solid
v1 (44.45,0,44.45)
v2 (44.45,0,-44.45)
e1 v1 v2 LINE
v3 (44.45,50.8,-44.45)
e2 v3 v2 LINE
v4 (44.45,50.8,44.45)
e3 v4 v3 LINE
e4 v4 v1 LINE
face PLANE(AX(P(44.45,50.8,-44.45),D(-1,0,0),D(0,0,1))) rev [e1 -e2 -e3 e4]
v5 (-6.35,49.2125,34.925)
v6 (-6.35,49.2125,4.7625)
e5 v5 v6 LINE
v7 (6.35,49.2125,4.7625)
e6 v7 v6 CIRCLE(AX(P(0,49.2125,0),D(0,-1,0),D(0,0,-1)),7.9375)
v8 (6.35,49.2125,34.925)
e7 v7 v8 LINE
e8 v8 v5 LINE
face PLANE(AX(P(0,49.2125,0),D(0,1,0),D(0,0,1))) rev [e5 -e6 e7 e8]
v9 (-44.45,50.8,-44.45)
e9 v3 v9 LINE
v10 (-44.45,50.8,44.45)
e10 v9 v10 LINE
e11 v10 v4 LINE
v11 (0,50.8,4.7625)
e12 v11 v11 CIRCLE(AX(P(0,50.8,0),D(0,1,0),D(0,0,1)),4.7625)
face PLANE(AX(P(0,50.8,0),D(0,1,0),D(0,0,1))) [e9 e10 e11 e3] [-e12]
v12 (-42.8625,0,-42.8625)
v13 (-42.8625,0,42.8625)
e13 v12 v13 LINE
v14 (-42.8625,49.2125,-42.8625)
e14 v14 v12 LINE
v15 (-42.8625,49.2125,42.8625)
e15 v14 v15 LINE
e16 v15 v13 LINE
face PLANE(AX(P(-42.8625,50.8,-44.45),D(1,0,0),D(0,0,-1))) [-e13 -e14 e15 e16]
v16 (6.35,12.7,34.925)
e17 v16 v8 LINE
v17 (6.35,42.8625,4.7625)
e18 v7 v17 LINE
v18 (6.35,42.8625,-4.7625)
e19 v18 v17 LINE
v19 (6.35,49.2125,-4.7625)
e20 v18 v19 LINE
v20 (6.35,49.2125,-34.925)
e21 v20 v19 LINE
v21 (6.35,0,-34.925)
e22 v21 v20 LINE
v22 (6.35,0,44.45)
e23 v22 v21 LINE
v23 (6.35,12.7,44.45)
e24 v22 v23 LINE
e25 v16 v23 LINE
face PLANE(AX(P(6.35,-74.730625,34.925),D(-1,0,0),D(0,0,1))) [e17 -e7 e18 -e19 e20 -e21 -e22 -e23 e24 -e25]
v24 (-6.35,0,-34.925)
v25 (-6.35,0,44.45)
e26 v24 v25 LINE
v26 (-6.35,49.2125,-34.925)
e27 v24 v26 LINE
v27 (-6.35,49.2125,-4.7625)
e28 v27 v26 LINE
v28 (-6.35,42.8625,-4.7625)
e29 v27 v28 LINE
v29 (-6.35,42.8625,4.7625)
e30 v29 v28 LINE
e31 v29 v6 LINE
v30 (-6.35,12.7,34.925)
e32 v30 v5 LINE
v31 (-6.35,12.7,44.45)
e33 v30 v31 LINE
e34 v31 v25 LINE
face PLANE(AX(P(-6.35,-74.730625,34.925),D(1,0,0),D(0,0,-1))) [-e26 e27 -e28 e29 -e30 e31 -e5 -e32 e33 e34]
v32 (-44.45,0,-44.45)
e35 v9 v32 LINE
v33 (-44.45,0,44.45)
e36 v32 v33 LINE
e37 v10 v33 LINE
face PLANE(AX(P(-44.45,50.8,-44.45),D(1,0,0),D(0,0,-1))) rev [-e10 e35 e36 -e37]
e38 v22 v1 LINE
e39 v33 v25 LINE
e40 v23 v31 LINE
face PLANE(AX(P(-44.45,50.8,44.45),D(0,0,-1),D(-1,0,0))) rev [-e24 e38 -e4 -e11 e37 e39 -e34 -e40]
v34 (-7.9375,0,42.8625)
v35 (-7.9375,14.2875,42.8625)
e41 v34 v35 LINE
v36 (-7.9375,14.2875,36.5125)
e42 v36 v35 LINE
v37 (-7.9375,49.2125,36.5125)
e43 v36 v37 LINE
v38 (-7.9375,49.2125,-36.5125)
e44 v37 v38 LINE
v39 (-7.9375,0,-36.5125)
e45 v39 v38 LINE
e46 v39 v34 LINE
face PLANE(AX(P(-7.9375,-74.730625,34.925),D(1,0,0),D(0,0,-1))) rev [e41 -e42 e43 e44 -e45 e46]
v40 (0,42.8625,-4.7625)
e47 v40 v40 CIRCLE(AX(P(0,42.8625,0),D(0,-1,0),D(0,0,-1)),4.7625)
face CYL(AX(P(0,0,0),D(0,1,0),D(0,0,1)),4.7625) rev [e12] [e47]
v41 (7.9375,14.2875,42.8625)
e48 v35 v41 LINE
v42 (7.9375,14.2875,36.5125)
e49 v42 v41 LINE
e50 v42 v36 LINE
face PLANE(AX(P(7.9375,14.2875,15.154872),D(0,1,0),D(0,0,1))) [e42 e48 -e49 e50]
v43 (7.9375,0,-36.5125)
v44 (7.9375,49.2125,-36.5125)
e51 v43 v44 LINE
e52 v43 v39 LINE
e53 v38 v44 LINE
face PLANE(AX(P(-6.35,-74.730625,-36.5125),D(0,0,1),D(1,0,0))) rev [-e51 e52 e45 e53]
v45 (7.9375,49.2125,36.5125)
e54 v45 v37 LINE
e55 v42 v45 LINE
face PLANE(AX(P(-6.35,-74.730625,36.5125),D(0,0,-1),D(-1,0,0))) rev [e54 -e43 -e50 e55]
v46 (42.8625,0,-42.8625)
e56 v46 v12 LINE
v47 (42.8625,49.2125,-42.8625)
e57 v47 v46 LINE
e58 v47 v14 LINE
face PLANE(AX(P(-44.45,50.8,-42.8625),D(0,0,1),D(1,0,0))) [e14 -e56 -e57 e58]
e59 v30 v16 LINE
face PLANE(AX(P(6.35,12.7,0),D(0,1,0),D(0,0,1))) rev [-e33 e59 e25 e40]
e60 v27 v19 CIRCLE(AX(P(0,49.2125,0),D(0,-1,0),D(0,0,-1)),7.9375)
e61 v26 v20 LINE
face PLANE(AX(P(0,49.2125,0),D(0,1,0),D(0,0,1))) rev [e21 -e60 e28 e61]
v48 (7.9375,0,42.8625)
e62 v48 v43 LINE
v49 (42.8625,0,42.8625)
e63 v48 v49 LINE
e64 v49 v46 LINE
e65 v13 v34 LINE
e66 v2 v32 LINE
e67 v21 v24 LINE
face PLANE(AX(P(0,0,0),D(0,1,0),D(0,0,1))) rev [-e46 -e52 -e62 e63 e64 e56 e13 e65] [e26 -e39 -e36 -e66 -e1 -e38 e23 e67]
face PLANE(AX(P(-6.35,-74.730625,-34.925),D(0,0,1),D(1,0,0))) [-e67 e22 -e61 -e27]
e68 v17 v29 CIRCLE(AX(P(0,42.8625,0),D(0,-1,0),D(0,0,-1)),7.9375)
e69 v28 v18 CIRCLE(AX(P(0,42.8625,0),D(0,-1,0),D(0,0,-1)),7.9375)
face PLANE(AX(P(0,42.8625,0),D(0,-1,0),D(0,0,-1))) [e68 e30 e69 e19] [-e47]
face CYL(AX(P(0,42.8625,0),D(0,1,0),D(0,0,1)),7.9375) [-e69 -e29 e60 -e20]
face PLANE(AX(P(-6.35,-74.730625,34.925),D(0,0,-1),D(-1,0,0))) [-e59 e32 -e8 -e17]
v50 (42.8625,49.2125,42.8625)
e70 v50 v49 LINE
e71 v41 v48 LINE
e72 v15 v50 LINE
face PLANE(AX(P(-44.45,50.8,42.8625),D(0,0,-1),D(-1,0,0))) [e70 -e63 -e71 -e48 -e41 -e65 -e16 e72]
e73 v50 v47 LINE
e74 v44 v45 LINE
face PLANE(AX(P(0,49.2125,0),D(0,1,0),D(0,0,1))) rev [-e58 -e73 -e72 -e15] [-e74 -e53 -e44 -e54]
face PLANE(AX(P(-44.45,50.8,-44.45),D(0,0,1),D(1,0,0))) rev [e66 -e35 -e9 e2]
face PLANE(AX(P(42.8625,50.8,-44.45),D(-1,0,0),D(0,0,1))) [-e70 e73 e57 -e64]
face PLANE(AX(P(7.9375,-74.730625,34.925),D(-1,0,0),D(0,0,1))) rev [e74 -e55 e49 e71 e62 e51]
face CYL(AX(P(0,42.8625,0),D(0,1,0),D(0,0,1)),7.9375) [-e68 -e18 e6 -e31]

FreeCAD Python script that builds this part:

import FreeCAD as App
import Part
import Sketcher
Q = App.Units.Quantity


def faces_at(feature, points):
    """Names of the faces that lie closest to the given points."""
    faces = feature.Shape.Faces
    near = lambda p: min(range(len(faces)), key=lambda i: faces[i].distToShape(Part.Vertex(*p))[0])
    return sorted({f"Face{near(p) + 1}" for p in points})

doc = App.newDocument("Part")
body = doc.addObject("PartDesign::Body", "Body")

# Sketch on XZ plane
sketch1 = body.newObject("Sketcher::SketchObject", "Sketch")
sketch1.AttachmentSupport = (doc.getObject("XZ_Plane"), [""])
sketch1.MapMode = "FlatFace"
sketch1.addGeometry(Part.LineSegment(App.Vector(-44.45, -44.45, 0), App.Vector(-44.45, 44.45, 0)), False)
sketch1.addGeometry(Part.LineSegment(App.Vector(-44.45, 44.45, 0), App.Vector(44.45, 44.45, 0)), False)
sketch1.addGeometry(Part.LineSegment(App.Vector(44.45, 44.45, 0), App.Vector(44.45, -44.45, 0)), False)
sketch1.addGeometry(Part.LineSegment(App.Vector(44.45, -44.45, 0), App.Vector(-44.45, -44.45, 0)), False)
sketch1.addConstraint(Sketcher.Constraint("Coincident", 0, 2, 1, 1))
sketch1.addConstraint(Sketcher.Constraint("Coincident", 1, 2, 2, 1))
sketch1.addConstraint(Sketcher.Constraint("Coincident", 2, 2, 3, 1))
sketch1.addConstraint(Sketcher.Constraint("Coincident", 3, 2, 0, 1))
sketch1.addConstraint(Sketcher.Constraint("Vertical", 0))
sketch1.addConstraint(Sketcher.Constraint("Horizontal", 1))
sketch1.addConstraint(Sketcher.Constraint("Vertical", 2))
sketch1.addConstraint(Sketcher.Constraint("Horizontal", 3))
sketch1.addConstraint(Sketcher.Constraint("Symmetric", 0, 2, 2, 2, -1, 1))
sketch1.addConstraint(Sketcher.Constraint("Equal", 3, 0))
sketch1.addConstraint(Sketcher.Constraint("DistanceX", 1, 1, 1, 2, Q("3.5 in")))
pad1 = body.newObject("PartDesign::Pad", "Pad")
pad1.Profile = sketch1
pad1.Length = Q("2 in")
pad1.Reversed = True
doc.recompute()

thickness = body.newObject("PartDesign::Thickness", "Thickness")
thickness.Base = (pad1, faces_at(pad1, [(0, 0, 0)]))
thickness.Value = Q("0.0625 in")
thickness.Reversed = True
thickness.Join = "Intersection"

# Sketch on XZ plane
sketch2 = body.newObject("Sketcher::SketchObject", "Sketch001")
sketch2.AttachmentSupport = (doc.getObject("XZ_Plane"), [""])
sketch2.MapMode = "FlatFace"
sketch2.AttachmentOffset = App.Placement(App.Vector(0, 0, -2 * 25.4), App.Rotation())
sketch2.addGeometry(Part.Circle(App.Vector(0, 0, 0), App.Vector(0, 0, 1), 4.7625), False)
sketch2.addConstraint(Sketcher.Constraint("Coincident", 0, 3, -1, 1))
sketch2.addConstraint(Sketcher.Constraint("Diameter", 0, Q("0.375 in")))
pocket1 = body.newObject("PartDesign::Pocket", "Pocket")
pocket1.Profile = sketch2
pocket1.Type = "ThroughAll"
pocket1.Reversed = True

# Sketch on XZ plane
sketch3 = body.newObject("Sketcher::SketchObject", "Sketch002")
sketch3.AttachmentSupport = (doc.getObject("XZ_Plane"), [""])
sketch3.MapMode = "FlatFace"
sketch3.AttachmentOffset = App.Placement(App.Vector(0, 0, -1.9375 * 25.4), App.Rotation())
sketch3.addGeometry(Part.LineSegment(App.Vector(-7.9375, 36.5125, 0), App.Vector(-7.9375, -36.5125, 0)), False)
sketch3.addGeometry(Part.LineSegment(App.Vector(-7.9375, -36.5125, 0), App.Vector(7.9375, -36.5125, 0)), False)
sketch3.addGeometry(Part.LineSegment(App.Vector(7.9375, -36.5125, 0), App.Vector(7.9375, 36.5125, 0)), False)
sketch3.addGeometry(Part.LineSegment(App.Vector(7.9375, 36.5125, 0), App.Vector(-7.9375, 36.5125, 0)), False)
sketch3.addGeometry(Part.LineSegment(App.Vector(6.35, -34.925, 0), App.Vector(-6.35, -34.925, 0)), False)
sketch3.addGeometry(Part.LineSegment(App.Vector(-6.35, -34.925, 0), App.Vector(-6.35, 34.925, 0)), False)
sketch3.addGeometry(Part.LineSegment(App.Vector(-6.35, 34.925, 0), App.Vector(6.35, 34.925, 0)), False)
sketch3.addGeometry(Part.LineSegment(App.Vector(6.35, 34.925, 0), App.Vector(6.35, -34.925, 0)), False)
sketch3.addConstraint(Sketcher.Constraint("Coincident", 0, 2, 1, 1))
sketch3.addConstraint(Sketcher.Constraint("Coincident", 1, 2, 2, 1))
sketch3.addConstraint(Sketcher.Constraint("Coincident", 2, 2, 3, 1))
sketch3.addConstraint(Sketcher.Constraint("Coincident", 3, 2, 0, 1))
sketch3.addConstraint(Sketcher.Constraint("Coincident", 4, 2, 5, 1))
sketch3.addConstraint(Sketcher.Constraint("Coincident", 5, 2, 6, 1))
sketch3.addConstraint(Sketcher.Constraint("Coincident", 6, 2, 7, 1))
sketch3.addConstraint(Sketcher.Constraint("Coincident", 7, 2, 4, 1))
sketch3.addConstraint(Sketcher.Constraint("Vertical", 0))
sketch3.addConstraint(Sketcher.Constraint("Horizontal", 1))
sketch3.addConstraint(Sketcher.Constraint("Vertical", 2))
sketch3.addConstraint(Sketcher.Constraint("Horizontal", 3))
sketch3.addConstraint(Sketcher.Constraint("Horizontal", 4))
sketch3.addConstraint(Sketcher.Constraint("Vertical", 5))
sketch3.addConstraint(Sketcher.Constraint("Horizontal", 6))
sketch3.addConstraint(Sketcher.Constraint("Vertical", 7))
sketch3.addConstraint(Sketcher.Constraint("Symmetric", 0, 2, 2, 2, -1, 1))
sketch3.addConstraint(Sketcher.Constraint("Symmetric", 4, 2, 6, 2, -1, 1))
sketch3.addConstraint(Sketcher.Constraint("DistanceX", 4, 2, 4, 1, Q("0.5 in")))
sketch3.addConstraint(Sketcher.Constraint("DistanceY", 5, 1, 5, 2, Q("2.75 in")))
sketch3.addConstraint(Sketcher.Constraint("DistanceX", 1, 1, 1, 2, Q("0.625 in")))
sketch3.addConstraint(Sketcher.Constraint("DistanceY", 0, 2, 0, 1, Q("2.875 in")))
pad2 = body.newObject("PartDesign::Pad", "Pad001")
pad2.Profile = sketch3
pad2.Length = Q("1.9375 in")

# Sketch on XZ plane
sketch4 = body.newObject("Sketcher::SketchObject", "Sketch003")
sketch4.AttachmentSupport = (doc.getObject("XZ_Plane"), [""])
sketch4.MapMode = "FlatFace"
sketch4.AttachmentOffset = App.Placement(App.Vector(0, 0, -1.9375 * 25.4), App.Rotation())
sketch4.addGeometry(Part.Circle(App.Vector(0, 0, 0), App.Vector(0, 0, 1), 7.9375), False)
sketch4.addGeometry(Part.Circle(App.Vector(0, 0, 0), App.Vector(0, 0, 1), 4.7625), False)
sketch4.addConstraint(Sketcher.Constraint("Coincident", 0, 3, -1, 1))
sketch4.addConstraint(Sketcher.Constraint("Coincident", 1, 3, -1, 1))
sketch4.addConstraint(Sketcher.Constraint("Diameter", 0, Q("0.625 in")))
sketch4.addConstraint(Sketcher.Constraint("Diameter", 1, Q("0.375 in")))
pad3 = body.newObject("PartDesign::Pad", "Pad002")
pad3.Profile = sketch4
pad3.Length = Q("0.25 in")

# Sketch on XY plane
sketch5 = body.newObject("Sketcher::SketchObject", "Sketch004")
sketch5.AttachmentSupport = (doc.getObject("XY_Plane"), [""])
sketch5.MapMode = "FlatFace"
sketch5.AttachmentOffset = App.Placement(App.Vector(0, 0, 1.75 * 25.4), App.Rotation())
sketch5.addGeometry(Part.LineSegment(App.Vector(-7.9375, 14.2875, 0), App.Vector(-7.9375, 0, 0)), False)
sketch5.addGeometry(Part.LineSegment(App.Vector(-7.9375, 0, 0), App.Vector(7.9375, 0, 0)), False)
sketch5.addGeometry(Part.LineSegment(App.Vector(7.9375, 0, 0), App.Vector(7.9375, 14.2875, 0)), False)
sketch5.addGeometry(Part.LineSegment(App.Vector(7.9375, 14.2875, 0), App.Vector(-7.9375, 14.2875, 0)), False)
sketch5.addConstraint(Sketcher.Constraint("Coincident", 0, 2, 1, 1))
sketch5.addConstraint(Sketcher.Constraint("Coincident", 1, 2, 2, 1))
sketch5.addConstraint(Sketcher.Constraint("Coincident", 2, 2, 3, 1))
sketch5.addConstraint(Sketcher.Constraint("Coincident", 3, 2, 0, 1))
sketch5.addConstraint(Sketcher.Constraint("Vertical", 0))
sketch5.addConstraint(Sketcher.Constraint("Horizontal", 1))
sketch5.addConstraint(Sketcher.Constraint("Vertical", 2))
sketch5.addConstraint(Sketcher.Constraint("Horizontal", 3))
sketch5.addConstraint(Sketcher.Constraint("Symmetric", 0, 2, 1, 2, -1, 1))
sketch5.addConstraint(Sketcher.Constraint("DistanceX", 1, 1, 1, 2, Q("0.625 in")))
sketch5.addConstraint(Sketcher.Constraint("DistanceY", 0, 2, 0, 1, Q("0.5625 in")))
pad4 = body.newObject("PartDesign::Pad", "Pad003")
pad4.Profile = sketch5
pad4.Length = Q("0.3125 in")
pad4.Reversed = True

# Sketch on XY plane
sketch6 = body.newObject("Sketcher::SketchObject", "Sketch005")
sketch6.AttachmentSupport = (doc.getObject("XY_Plane"), [""])
sketch6.MapMode = "FlatFace"
sketch6.AttachmentOffset = App.Placement(App.Vector(0, 0, 1.375 * 25.4), App.Rotation())
sketch6.addGeometry(Part.LineSegment(App.Vector(-6.35, 12.7, 0), App.Vector(-6.35, 0, 0)), False)
sketch6.addGeometry(Part.LineSegment(App.Vector(-6.35, 0, 0), App.Vector(6.35, 0, 0)), False)
sketch6.addGeometry(Part.LineSegment(App.Vector(6.35, 0, 0), App.Vector(6.35, 12.7, 0)), False)
sketch6.addGeometry(Part.LineSegment(App.Vector(6.35, 12.7, 0), App.Vector(-6.35, 12.7, 0)), False)
sketch6.addConstraint(Sketcher.Constraint("Coincident", 0, 2, 1, 1))
sketch6.addConstraint(Sketcher.Constraint("Coincident", 1, 2, 2, 1))
sketch6.addConstraint(Sketcher.Constraint("Coincident", 2, 2, 3, 1))
sketch6.addConstraint(Sketcher.Constraint("Coincident", 3, 2, 0, 1))
sketch6.addConstraint(Sketcher.Constraint("Vertical", 0))
sketch6.addConstraint(Sketcher.Constraint("Horizontal", 1))
sketch6.addConstraint(Sketcher.Constraint("Vertical", 2))
sketch6.addConstraint(Sketcher.Constraint("Horizontal", 3))
sketch6.addConstraint(Sketcher.Constraint("Symmetric", 0, 2, 1, 2, -1, 1))
sketch6.addConstraint(Sketcher.Constraint("Equal", 3, 0))
sketch6.addConstraint(Sketcher.Constraint("DistanceX", 1, 1, 1, 2, Q("0.5 in")))
pocket2 = body.newObject("PartDesign::Pocket", "Pocket001")
pocket2.Profile = sketch6
pocket2.Length = Q("0.375 in")
pocket2.Reversed = True

doc.recompute()
